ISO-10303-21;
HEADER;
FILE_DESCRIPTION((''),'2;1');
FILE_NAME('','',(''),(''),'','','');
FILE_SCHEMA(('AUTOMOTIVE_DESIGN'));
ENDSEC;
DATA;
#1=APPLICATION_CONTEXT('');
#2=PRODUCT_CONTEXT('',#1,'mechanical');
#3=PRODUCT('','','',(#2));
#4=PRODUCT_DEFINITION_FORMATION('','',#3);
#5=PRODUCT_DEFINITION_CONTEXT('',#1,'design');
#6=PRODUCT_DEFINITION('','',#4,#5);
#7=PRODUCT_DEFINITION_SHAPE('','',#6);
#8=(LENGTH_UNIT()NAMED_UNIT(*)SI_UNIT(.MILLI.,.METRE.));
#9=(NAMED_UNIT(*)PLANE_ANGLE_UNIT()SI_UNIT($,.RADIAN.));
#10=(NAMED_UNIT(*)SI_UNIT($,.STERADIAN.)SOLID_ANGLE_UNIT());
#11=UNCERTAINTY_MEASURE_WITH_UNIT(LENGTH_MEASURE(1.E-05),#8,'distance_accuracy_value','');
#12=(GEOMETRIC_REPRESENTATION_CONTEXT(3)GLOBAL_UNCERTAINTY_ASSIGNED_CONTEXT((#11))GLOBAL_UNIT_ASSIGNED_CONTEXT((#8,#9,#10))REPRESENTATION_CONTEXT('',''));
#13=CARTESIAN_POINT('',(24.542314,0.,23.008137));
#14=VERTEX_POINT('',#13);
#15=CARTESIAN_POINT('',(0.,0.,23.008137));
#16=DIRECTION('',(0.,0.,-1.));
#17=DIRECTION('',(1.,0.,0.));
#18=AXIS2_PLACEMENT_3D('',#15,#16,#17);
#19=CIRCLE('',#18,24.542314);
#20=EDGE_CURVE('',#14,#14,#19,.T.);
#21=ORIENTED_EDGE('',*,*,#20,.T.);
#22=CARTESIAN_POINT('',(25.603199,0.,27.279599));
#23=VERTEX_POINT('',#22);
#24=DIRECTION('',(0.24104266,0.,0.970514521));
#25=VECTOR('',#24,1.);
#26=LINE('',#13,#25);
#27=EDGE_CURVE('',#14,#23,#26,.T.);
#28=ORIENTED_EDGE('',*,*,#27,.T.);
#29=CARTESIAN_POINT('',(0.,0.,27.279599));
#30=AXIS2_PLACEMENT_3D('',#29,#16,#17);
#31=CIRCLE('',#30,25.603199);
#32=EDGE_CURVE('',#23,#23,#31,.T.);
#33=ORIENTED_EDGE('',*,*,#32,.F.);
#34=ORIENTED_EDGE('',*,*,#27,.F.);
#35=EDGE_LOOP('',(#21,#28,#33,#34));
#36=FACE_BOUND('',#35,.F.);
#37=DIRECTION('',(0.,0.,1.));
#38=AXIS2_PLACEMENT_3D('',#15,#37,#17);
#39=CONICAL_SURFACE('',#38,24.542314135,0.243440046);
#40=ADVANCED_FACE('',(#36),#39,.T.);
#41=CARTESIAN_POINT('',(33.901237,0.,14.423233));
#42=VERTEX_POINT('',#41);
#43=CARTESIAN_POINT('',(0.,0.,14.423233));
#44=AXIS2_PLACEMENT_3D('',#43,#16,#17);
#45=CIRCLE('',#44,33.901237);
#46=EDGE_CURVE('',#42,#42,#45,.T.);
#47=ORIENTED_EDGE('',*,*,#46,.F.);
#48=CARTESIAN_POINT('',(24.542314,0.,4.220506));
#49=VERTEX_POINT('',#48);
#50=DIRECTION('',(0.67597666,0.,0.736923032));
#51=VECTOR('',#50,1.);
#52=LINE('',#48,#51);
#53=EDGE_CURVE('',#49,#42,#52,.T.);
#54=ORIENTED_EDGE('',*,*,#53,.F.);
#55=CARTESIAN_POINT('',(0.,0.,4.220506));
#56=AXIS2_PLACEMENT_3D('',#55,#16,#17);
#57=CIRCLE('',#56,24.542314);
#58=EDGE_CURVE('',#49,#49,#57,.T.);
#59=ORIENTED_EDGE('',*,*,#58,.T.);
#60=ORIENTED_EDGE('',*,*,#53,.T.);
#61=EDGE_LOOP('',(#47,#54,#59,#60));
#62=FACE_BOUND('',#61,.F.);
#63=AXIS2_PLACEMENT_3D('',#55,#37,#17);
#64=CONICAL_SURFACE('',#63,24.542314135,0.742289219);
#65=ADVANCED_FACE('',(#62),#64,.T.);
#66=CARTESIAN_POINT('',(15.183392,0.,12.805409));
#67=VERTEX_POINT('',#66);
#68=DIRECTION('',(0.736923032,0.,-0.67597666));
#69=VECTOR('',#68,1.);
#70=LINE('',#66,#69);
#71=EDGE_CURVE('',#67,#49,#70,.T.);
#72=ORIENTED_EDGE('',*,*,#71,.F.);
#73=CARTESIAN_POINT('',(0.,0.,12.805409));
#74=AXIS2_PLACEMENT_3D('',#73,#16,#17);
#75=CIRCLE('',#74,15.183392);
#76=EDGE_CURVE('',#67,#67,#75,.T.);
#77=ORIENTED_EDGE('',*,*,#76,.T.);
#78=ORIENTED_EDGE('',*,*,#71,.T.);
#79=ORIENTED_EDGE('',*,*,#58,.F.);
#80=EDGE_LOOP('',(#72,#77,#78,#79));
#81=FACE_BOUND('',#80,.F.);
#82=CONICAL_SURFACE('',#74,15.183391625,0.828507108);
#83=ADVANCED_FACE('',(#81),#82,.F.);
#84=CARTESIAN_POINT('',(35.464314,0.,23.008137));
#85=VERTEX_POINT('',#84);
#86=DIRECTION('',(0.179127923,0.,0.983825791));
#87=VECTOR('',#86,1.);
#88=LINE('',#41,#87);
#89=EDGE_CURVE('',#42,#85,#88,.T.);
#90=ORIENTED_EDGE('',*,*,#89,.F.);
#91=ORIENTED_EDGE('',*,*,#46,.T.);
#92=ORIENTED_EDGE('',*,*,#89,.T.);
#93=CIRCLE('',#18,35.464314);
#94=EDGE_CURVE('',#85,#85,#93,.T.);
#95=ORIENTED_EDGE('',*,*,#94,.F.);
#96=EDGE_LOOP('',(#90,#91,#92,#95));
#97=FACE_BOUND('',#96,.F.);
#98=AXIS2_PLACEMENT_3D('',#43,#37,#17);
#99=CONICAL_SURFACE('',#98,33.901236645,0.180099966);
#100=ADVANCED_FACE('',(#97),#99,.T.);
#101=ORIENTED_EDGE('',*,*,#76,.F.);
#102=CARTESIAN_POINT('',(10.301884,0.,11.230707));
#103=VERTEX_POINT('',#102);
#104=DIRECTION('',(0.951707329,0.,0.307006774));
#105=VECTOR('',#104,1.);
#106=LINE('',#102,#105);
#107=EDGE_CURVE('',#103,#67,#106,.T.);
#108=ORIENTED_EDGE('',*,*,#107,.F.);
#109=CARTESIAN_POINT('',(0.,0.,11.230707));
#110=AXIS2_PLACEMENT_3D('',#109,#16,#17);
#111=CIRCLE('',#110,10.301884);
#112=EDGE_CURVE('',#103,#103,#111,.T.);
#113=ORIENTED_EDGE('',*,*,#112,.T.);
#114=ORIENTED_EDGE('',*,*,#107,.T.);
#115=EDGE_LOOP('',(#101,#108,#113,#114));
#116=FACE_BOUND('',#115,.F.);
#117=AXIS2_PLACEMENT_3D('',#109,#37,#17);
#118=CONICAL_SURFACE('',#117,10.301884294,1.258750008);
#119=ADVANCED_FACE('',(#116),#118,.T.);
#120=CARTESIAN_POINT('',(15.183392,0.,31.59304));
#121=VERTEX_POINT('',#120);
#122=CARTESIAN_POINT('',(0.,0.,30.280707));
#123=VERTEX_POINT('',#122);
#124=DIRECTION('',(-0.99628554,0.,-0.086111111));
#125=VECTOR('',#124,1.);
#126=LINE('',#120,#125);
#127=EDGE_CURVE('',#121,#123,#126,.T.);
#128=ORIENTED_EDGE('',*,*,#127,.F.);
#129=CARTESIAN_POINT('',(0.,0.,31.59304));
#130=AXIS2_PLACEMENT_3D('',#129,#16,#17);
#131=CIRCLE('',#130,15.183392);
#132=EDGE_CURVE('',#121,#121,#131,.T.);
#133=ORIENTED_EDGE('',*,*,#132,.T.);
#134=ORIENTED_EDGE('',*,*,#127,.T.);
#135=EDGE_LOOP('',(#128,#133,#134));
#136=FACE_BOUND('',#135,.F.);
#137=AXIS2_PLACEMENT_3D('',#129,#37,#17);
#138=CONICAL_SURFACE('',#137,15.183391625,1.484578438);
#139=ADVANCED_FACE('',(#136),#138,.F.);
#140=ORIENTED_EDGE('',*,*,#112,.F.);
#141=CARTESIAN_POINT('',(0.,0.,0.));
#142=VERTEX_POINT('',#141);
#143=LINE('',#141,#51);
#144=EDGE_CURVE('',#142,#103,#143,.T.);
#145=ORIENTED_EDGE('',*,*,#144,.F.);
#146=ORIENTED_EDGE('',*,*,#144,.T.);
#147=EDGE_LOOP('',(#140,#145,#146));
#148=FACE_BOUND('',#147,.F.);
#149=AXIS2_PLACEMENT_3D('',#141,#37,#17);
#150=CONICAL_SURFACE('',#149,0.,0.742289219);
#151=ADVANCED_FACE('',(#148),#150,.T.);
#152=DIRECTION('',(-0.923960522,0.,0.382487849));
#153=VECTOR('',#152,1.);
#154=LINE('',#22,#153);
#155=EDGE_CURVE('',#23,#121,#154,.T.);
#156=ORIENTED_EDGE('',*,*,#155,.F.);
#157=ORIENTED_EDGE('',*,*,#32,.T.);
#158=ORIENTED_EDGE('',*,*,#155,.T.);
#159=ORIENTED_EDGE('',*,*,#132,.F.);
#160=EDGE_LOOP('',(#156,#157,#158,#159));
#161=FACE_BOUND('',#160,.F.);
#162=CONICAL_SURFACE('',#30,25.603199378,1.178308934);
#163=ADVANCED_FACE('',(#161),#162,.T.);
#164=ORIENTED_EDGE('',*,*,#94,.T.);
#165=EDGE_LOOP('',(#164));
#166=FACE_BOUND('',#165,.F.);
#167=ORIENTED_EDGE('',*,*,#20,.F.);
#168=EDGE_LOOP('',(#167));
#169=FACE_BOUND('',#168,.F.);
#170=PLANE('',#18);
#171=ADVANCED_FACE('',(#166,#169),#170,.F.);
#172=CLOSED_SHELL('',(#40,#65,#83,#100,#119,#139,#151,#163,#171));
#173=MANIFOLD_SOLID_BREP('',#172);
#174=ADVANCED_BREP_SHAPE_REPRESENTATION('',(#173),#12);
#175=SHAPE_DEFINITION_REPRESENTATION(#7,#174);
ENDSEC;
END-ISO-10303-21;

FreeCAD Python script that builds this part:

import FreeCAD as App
import Part
import Sketcher

V = App.Vector
Q = App.Units.Quantity


def add_polygon(sketch, points):
    """Adds a closed chain of lines whose ends are joined by coincident constraints."""
    first, n = sketch.GeometryCount, len(points)
    for a, b in zip(points, points[1:] + points[:1]):
        sketch.addGeometry(Part.LineSegment(App.Vector(*a, 0), App.Vector(*b, 0)), False)
    for i in range(n):
        sketch.addConstraint(Sketcher.Constraint("Coincident", first + i, 2, first + (i + 1) % n, 1))

doc = App.newDocument("Part")
body = doc.addObject("PartDesign::Body", "Body")

# Sketch on XZ plane
sketch1 = doc.addObject("Sketcher::SketchObject", "Sketch")
body.addObject(sketch1)
sketch1.AttachmentSupport = (doc.XZ_Plane, [""])
sketch1.MapMode = "FlatFace"
add_polygon(sketch1, [(0, 0), (10.3, 11.2), (15.2, 12.8), (24.5, 4.2), (33.9, 14.4), (35.5, 23), (24.5, 23), (25.6, 27.3), (15.2, 31.6), (0, 30.3)])  # lines 0-9
sketch1.addConstraint(Sketcher.Constraint("Horizontal", 5))
sketch1.addConstraint(Sketcher.Constraint("Vertical", 9))
sketch1.addConstraint(Sketcher.Constraint("Coincident", 9, 2, -1, 1))
sketch1.addConstraint(Sketcher.Constraint("Perpendicular", 0, 2))
sketch1.addConstraint(Sketcher.Constraint("Perpendicular", 2, 3))
sketch1.addConstraint(Sketcher.Constraint("Vertical", 2, 2, 5, 2))
sketch1.addConstraint(Sketcher.Constraint("Vertical", 1, 2, 7, 2))
sketch1.addConstraint(Sketcher.Constraint("Equal", 0, 8))
sketch1.addConstraint(Sketcher.Constraint("Distance", 0, Q("0.6 in")))
sketch1.addConstraint(Sketcher.Constraint("Distance", 2, Q("0.5 in")))
sketch1.addConstraint(Sketcher.Constraint("DistanceX", 5, 2, 5, 1, Q("0.43 in")))
sketch1.addConstraint(Sketcher.Constraint("DistanceY", 0, 2, 8, 2, Q("0.75 in")))
sketch1.addConstraint(Sketcher.Constraint("DistanceX", -1, 1, 6, 2, Q("1.008 in")))
sketch1.addConstraint(Sketcher.Constraint("DistanceY", -1, 1, 6, 2, Q("1.0739999 in")))
sketch1.addConstraint(Sketcher.Constraint("DistanceY", 2, 2, 0, 2, Q("7.010201 mm")))
sketch1.addConstraint(Sketcher.Constraint("Distance", 1, Q("5.129211 mm")))
sketch1.addConstraint(Sketcher.Constraint("Distance", 4, Q("8.72604 mm")))
sketch1.addConstraint(Sketcher.Constraint("Distance", 7, Q("11.27733 mm")))
sketch1.addConstraint(Sketcher.Constraint("DistanceY", 2, 2, 4, 2, Q("18.787631 mm")))
revolution = doc.addObject("PartDesign::Revolution", "Revolution")
body.addObject(revolution)
revolution.Profile = sketch1
revolution.ReferenceAxis = (sketch1, ["V_Axis"])
revolution.Angle = 360

doc.recompute()
